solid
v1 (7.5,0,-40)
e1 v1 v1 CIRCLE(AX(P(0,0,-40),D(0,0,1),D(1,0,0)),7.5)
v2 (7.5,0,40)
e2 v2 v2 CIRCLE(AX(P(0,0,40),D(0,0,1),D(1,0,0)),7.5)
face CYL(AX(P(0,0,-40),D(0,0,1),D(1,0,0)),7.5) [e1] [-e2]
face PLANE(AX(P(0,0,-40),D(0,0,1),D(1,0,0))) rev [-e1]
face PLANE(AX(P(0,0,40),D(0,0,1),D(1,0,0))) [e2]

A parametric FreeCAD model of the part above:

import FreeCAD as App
import Part
import Sketcher

V = App.Vector

doc = App.newDocument("Part")
params = doc.addObject("Spreadsheet::Sheet", "Params")
for row, (alias, value) in enumerate([
    ("sketch1_diameter", "15 mm"),
    ("pad1_length", "40 mm"),
    ("pad1_length2", "40 mm"),
], start=1):
    params.set(f"A{row}", alias)
    params.set(f"B{row}", "=" + value)
    params.setAlias(f"B{row}", alias)

body = doc.addObject("PartDesign::Body", "Body")

# Sketch on XY plane
sketch1 = body.newObject("Sketcher::SketchObject", "Sketch")
sketch1.AttachmentSupport = (doc.getObject("XY_Plane"), [""])
sketch1.MapMode = "FlatFace"
sketch1.addGeometry(Part.Circle(V(0, 0, 0), V(0, 0, 1), 7.5), False)
sketch1.addConstraint([
    Sketcher.Constraint("Coincident", 0, 3, -1, 1),
    Sketcher.Constraint("Diameter", 0, 15.0),
])
sketch1.setExpression("Constraints[1]", "Params.sketch1_diameter")
pad1 = body.newObject("PartDesign::Pad", "Pad")
pad1.Profile = sketch1
pad1.Type = "TwoLengths"
pad1.setExpression("Length", "Params.pad1_length")
pad1.setExpression("Length2", "Params.pad1_length2")

doc.recompute()
